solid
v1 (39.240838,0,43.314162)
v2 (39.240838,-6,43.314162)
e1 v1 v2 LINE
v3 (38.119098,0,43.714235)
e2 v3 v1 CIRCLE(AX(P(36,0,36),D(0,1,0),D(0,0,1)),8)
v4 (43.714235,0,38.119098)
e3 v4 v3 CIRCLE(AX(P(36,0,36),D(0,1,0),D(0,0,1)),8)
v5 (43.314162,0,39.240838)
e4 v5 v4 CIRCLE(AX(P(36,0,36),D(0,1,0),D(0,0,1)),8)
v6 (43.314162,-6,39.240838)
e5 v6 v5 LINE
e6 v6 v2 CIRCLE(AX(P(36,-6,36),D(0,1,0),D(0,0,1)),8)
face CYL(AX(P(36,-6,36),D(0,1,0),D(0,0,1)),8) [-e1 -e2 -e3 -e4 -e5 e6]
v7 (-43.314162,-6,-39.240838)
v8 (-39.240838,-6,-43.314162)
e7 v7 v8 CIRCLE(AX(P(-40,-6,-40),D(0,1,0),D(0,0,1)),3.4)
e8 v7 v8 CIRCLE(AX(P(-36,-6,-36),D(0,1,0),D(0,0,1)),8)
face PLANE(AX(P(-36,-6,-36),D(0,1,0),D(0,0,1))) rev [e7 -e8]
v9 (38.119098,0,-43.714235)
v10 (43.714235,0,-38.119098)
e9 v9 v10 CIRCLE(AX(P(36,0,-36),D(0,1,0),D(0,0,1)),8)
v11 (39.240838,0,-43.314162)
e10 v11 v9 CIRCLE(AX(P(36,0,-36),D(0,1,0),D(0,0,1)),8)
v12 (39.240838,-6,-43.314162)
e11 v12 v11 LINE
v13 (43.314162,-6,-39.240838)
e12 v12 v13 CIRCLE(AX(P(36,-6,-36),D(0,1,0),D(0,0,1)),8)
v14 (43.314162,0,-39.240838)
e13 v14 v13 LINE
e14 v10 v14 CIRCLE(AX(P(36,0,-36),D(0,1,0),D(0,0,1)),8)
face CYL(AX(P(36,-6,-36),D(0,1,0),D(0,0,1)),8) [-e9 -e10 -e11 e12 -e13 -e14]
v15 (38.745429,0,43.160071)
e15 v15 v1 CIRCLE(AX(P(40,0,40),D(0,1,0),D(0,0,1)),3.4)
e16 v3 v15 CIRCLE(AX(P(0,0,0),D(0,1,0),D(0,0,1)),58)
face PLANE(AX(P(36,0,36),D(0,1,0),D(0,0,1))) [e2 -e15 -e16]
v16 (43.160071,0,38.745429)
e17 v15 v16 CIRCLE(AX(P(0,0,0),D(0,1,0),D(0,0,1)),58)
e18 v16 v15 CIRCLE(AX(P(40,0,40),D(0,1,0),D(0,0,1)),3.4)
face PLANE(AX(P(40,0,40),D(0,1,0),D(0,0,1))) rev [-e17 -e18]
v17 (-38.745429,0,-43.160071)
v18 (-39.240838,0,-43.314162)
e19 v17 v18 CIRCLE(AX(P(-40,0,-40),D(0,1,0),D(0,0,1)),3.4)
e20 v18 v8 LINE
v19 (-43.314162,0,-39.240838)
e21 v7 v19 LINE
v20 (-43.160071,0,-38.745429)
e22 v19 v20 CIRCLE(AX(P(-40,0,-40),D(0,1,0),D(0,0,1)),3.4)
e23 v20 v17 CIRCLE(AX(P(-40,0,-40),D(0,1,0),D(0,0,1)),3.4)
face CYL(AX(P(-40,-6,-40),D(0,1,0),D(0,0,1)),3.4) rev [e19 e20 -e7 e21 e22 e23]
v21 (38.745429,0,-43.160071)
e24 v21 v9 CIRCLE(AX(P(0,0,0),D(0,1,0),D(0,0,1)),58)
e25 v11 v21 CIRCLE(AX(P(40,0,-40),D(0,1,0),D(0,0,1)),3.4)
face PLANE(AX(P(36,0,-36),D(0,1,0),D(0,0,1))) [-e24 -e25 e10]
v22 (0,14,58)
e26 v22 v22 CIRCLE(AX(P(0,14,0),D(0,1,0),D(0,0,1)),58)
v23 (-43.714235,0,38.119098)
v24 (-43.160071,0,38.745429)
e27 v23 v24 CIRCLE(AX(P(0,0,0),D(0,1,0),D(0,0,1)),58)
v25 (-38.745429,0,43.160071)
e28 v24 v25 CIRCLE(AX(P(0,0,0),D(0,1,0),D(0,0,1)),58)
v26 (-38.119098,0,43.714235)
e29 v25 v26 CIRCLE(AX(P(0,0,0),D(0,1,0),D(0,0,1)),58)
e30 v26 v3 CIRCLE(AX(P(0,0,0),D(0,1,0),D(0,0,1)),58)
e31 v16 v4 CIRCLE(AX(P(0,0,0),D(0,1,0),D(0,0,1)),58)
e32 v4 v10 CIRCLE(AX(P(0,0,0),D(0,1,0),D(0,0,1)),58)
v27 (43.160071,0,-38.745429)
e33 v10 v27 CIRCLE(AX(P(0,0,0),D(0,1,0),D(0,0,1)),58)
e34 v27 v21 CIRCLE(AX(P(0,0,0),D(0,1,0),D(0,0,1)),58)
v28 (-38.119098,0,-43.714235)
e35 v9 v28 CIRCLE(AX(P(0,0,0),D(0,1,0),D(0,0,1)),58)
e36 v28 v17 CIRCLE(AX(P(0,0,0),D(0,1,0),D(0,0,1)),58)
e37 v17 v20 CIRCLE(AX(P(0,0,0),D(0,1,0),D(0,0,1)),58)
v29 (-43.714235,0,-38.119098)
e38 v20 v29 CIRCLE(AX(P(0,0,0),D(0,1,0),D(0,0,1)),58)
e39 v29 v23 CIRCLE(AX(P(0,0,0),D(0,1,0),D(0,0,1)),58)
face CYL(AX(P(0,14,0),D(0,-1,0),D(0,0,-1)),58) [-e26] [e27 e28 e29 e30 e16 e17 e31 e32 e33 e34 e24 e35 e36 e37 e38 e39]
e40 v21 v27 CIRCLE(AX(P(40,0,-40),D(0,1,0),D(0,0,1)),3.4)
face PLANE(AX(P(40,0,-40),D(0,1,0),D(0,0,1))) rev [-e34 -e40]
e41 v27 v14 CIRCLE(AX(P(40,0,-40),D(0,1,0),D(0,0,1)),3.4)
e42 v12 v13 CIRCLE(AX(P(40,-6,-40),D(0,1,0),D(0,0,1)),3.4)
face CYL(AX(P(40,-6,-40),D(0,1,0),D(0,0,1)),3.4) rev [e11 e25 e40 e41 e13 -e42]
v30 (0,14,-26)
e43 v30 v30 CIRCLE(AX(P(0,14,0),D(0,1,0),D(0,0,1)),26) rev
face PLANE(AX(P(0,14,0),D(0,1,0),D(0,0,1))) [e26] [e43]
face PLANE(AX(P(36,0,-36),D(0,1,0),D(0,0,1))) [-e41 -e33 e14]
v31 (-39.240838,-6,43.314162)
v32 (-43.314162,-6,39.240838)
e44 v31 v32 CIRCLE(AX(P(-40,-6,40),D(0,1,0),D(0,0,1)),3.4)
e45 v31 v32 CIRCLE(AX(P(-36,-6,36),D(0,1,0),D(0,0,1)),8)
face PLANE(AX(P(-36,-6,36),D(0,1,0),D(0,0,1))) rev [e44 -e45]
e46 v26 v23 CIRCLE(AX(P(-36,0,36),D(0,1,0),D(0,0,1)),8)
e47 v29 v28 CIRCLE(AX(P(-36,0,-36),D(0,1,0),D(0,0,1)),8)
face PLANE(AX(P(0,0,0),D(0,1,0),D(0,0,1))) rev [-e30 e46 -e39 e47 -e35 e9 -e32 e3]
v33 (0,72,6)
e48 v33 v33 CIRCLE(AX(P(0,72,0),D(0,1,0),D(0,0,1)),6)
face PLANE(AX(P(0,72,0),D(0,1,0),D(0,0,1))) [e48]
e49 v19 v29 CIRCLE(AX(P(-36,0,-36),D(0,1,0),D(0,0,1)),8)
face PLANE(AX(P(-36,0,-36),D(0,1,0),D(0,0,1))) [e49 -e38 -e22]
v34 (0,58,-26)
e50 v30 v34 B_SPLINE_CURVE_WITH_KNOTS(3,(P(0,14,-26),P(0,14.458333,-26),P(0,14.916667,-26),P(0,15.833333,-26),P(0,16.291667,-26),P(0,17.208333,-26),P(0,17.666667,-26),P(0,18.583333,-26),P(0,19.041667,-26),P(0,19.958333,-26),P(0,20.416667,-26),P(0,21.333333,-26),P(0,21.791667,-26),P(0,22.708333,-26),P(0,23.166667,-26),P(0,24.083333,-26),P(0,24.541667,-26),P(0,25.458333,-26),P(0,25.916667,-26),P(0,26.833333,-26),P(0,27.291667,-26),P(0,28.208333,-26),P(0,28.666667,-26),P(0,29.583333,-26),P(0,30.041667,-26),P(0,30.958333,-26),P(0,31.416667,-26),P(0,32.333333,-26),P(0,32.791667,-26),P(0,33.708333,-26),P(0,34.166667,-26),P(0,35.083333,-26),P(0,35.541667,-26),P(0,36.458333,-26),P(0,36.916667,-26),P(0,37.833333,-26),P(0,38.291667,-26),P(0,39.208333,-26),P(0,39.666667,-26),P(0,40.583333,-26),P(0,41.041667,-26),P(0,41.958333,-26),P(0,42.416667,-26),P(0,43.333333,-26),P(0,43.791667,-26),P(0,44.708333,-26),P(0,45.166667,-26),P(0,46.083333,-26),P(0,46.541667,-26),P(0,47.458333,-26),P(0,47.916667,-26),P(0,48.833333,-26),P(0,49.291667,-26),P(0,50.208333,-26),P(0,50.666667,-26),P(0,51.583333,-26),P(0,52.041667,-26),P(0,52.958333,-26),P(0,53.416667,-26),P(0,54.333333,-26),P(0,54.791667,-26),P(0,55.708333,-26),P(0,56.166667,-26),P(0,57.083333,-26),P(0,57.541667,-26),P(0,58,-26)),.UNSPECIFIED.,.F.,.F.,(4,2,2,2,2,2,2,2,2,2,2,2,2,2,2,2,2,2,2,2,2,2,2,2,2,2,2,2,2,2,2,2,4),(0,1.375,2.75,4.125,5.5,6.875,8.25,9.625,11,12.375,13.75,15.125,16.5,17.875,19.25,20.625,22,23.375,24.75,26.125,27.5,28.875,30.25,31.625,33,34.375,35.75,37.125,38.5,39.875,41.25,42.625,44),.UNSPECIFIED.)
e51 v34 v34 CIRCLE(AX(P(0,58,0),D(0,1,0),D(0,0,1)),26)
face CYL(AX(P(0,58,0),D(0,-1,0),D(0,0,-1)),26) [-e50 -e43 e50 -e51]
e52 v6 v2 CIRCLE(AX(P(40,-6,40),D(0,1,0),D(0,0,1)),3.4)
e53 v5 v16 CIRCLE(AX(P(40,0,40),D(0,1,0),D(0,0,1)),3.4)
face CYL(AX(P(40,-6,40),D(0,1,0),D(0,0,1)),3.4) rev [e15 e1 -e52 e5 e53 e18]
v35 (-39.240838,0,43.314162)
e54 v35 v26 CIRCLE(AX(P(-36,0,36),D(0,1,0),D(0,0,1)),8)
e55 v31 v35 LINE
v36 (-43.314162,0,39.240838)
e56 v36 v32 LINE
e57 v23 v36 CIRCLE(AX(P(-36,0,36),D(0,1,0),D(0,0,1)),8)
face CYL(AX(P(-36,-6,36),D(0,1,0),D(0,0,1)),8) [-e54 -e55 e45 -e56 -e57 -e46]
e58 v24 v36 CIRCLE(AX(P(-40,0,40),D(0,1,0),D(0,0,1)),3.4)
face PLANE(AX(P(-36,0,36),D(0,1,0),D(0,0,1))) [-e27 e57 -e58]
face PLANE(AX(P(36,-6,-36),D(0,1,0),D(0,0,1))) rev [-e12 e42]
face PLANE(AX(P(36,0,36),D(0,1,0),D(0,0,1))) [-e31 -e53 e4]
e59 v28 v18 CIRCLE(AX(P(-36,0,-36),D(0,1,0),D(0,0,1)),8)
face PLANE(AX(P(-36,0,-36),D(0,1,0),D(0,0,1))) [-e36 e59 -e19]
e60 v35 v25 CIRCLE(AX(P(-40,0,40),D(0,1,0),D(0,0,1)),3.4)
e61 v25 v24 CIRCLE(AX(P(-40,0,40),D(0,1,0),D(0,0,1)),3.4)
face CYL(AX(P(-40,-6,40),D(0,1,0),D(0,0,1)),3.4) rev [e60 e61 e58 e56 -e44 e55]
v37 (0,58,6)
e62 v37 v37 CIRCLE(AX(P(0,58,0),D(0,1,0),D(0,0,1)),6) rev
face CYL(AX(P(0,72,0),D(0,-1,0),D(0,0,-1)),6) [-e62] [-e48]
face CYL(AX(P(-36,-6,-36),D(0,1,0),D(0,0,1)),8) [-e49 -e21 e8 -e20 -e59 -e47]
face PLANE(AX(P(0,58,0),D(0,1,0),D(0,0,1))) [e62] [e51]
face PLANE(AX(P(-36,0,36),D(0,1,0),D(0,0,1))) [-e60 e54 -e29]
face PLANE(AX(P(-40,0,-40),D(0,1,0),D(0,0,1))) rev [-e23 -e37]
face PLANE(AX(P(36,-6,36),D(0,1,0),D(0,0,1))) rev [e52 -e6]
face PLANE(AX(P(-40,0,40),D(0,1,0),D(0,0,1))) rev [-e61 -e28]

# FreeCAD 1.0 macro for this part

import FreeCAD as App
import Part
import Sketcher
Q = App.Units.Quantity

doc = App.newDocument("Part")
body = doc.addObject("PartDesign::Body", "Body")

# Sketch on XZ plane
sketch1 = body.newObject("Sketcher::SketchObject", "Sketch")
sketch1.AttachmentSupport = (doc.getObject("XZ_Plane"), [""])
sketch1.MapMode = "FlatFace"
sketch1.addGeometry(Part.Circle(App.Vector(0, 0, 0), App.Vector(0, 0, 1), 58), False)
sketch1.addConstraint(Sketcher.Constraint("Coincident", 0, 3, -1, 1))
sketch1.addConstraint(Sketcher.Constraint("Diameter", 0, Q("116 mm")))
pad1 = body.newObject("PartDesign::Pad", "Pad")
pad1.Profile = sketch1
pad1.Length = 14
pad1.Reversed = True

# Sketch on XZ plane
sketch2 = body.newObject("Sketcher::SketchObject", "Sketch001")
sketch2.AttachmentSupport = (doc.getObject("XZ_Plane"), [""])
sketch2.MapMode = "FlatFace"
sketch2.addGeometry(Part.Circle(App.Vector(-36, 36, 0), App.Vector(0, 0, 1), 8), False)
sketch2.addGeometry(Part.Circle(App.Vector(36, 36, 0), App.Vector(0, 0, 1), 8), False)
sketch2.addGeometry(Part.Circle(App.Vector(-36, -36, 0), App.Vector(0, 0, 1), 8), False)
sketch2.addGeometry(Part.Circle(App.Vector(36, -36, 0), App.Vector(0, 0, 1), 8), False)
sketch2.addConstraint(Sketcher.Constraint("Equal", 0, 1))
sketch2.addConstraint(Sketcher.Constraint("Equal", 1, 2))
sketch2.addConstraint(Sketcher.Constraint("Equal", 2, 3))
sketch2.addConstraint(Sketcher.Constraint("Symmetric", 1, 3, 2, 3, -1, 1))
sketch2.addConstraint(Sketcher.Constraint("Symmetric", 0, 3, 3, 3, -1, 1))
sketch2.addConstraint(Sketcher.Constraint("Symmetric", 0, 3, 1, 3, -2))
sketch2.addConstraint(Sketcher.Constraint("Diameter", 0, Q("16 mm")))
sketch2.addConstraint(Sketcher.Constraint("DistanceX", 0, 3, -1, 1, Q("36 mm")))
sketch2.addConstraint(Sketcher.Constraint("DistanceY", -1, 1, 0, 3, Q("36 mm")))
pad2 = body.newObject("PartDesign::Pad", "Pad001")
pad2.Profile = sketch2
pad2.Length = 6

# Sketch on XZ plane
sketch3 = body.newObject("Sketcher::SketchObject", "Sketch002")
sketch3.AttachmentSupport = (doc.getObject("XZ_Plane"), [""])
sketch3.MapMode = "FlatFace"
sketch3.addGeometry(Part.Circle(App.Vector(0, 0, 0), App.Vector(0, 0, 1), 26), False)
sketch3.addConstraint(Sketcher.Constraint("Coincident", 0, 3, -1, 1))
sketch3.addConstraint(Sketcher.Constraint("Diameter", 0, Q("52 mm")))
pad3 = body.newObject("PartDesign::Pad", "Pad002")
pad3.Profile = sketch3
pad3.Length = 58
pad3.Reversed = True

# Sketch on XZ plane
sketch4 = body.newObject("Sketcher::SketchObject", "Sketch003")
sketch4.AttachmentSupport = (doc.getObject("XZ_Plane"), [""])
sketch4.MapMode = "FlatFace"
sketch4.addGeometry(Part.Circle(App.Vector(0, 0, 0), App.Vector(0, 0, 1), 6), False)
sketch4.addConstraint(Sketcher.Constraint("Coincident", 0, 3, -1, 1))
sketch4.addConstraint(Sketcher.Constraint("Diameter", 0, Q("12 mm")))
pad4 = body.newObject("PartDesign::Pad", "Pad003")
pad4.Profile = sketch4
pad4.Length = 72
pad4.Reversed = True

# Sketch on XZ plane
sketch5 = body.newObject("Sketcher::SketchObject", "Sketch004")
sketch5.AttachmentSupport = (doc.getObject("XZ_Plane"), [""])
sketch5.MapMode = "FlatFace"
sketch5.addGeometry(Part.Circle(App.Vector(-40, 40, 0), App.Vector(0, 0, 1), 3.4), False)
sketch5.addGeometry(Part.Circle(App.Vector(40, 40, 0), App.Vector(0, 0, 1), 3.4), False)
sketch5.addGeometry(Part.Circle(App.Vector(-40, -40, 0), App.Vector(0, 0, 1), 3.4), False)
sketch5.addGeometry(Part.Circle(App.Vector(40, -40, 0), App.Vector(0, 0, 1), 3.4), False)
sketch5.addConstraint(Sketcher.Constraint("Equal", 0, 1))
sketch5.addConstraint(Sketcher.Constraint("Equal", 1, 2))
sketch5.addConstraint(Sketcher.Constraint("Equal", 2, 3))
sketch5.addConstraint(Sketcher.Constraint("Symmetric", 1, 3, 2, 3, -1, 1))
sketch5.addConstraint(Sketcher.Constraint("Symmetric", 0, 3, 3, 3, -1, 1))
sketch5.addConstraint(Sketcher.Constraint("Symmetric", 0, 3, 1, 3, -2))
sketch5.addConstraint(Sketcher.Constraint("Diameter", 0, Q("6.8 mm")))
sketch5.addConstraint(Sketcher.Constraint("DistanceX", 0, 3, -1, 1, Q("40 mm")))
sketch5.addConstraint(Sketcher.Constraint("DistanceY", -1, 1, 0, 3, Q("40 mm")))
pocket1 = body.newObject("PartDesign::Pocket", "Pocket")
pocket1.Profile = sketch5
pocket1.Type = "ThroughAll"
pocket1.Reversed = True

doc.recompute()
